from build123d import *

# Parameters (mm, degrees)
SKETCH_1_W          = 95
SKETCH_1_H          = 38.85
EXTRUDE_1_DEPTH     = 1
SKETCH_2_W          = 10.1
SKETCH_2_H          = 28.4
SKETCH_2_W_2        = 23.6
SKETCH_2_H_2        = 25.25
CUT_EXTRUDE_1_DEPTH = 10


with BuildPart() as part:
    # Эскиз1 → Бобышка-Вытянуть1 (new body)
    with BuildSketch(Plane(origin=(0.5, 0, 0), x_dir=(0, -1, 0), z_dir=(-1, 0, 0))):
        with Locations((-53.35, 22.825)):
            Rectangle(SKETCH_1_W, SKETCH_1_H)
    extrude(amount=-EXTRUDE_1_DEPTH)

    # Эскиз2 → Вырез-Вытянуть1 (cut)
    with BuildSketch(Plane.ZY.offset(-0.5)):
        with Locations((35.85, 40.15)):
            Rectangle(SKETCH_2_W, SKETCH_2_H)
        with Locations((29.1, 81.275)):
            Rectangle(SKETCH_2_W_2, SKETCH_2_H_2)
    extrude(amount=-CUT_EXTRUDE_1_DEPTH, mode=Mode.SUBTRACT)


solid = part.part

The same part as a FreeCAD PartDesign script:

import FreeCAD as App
import Part
import Sketcher
Q = App.Units.Quantity


def add_polygon(sketch, points):
    """Adds a closed chain of lines whose ends are joined by coincident constraints."""
    first, n = sketch.GeometryCount, len(points)
    for a, b in zip(points, points[1:] + points[:1]):
        sketch.addGeometry(Part.LineSegment(App.Vector(*a, 0), App.Vector(*b, 0)), False)
    for i in range(n):
        sketch.addConstraint(Sketcher.Constraint("Coincident", first + i, 2, first + (i + 1) % n, 1))

doc = App.newDocument("Part")
params = doc.addObject("Spreadsheet::Sheet", "Params")
for row, (alias, value) in enumerate([
    ("sketch1_width", "95 mm"),
    ("sketch1_height", "38.85 mm"),
    ("pad1_length", "1 mm"),
    ("sketch2_width", "28.4 mm"),
    ("sketch2_height", "10.1 mm"),
    ("sketch2_height2", "23.6 mm"),
    ("sketch2_width2", "25.25 mm"),
    ("pocket1_length", "10 mm"),
], start=1):
    params.set(f"A{row}", alias)
    params.set(f"B{row}", "=" + value)
    params.setAlias(f"B{row}", alias)

body = doc.addObject("PartDesign::Body", "Body")

# Sketch on YZ plane
sketch1 = body.newObject("Sketcher::SketchObject", "Sketch")
sketch1.AttachmentSupport = (doc.getObject("YZ_Plane"), [""])
sketch1.MapMode = "FlatFace"
sketch1.AttachmentOffset = App.Placement(App.Vector(0, 0, 0.5), App.Rotation())
add_polygon(sketch1, [(101, 42), (101, 3), (6, 3), (6, 42)])  # lines 0-3
sketch1.addConstraint([
    Sketcher.Constraint("Vertical", 0),
    Sketcher.Constraint("Horizontal", 1),
    Sketcher.Constraint("Vertical", 2),
    Sketcher.Constraint("Horizontal", 3),
    Sketcher.Constraint("DistanceX", 1, 2, 1, 1, Q("95 mm")),
    Sketcher.Constraint("DistanceY", 0, 2, 0, 1, Q("38.85 mm")),
    Sketcher.Constraint("DistanceY", -1, 1, 0, 2, Q("3.4 mm")),
    Sketcher.Constraint("DistanceX", -1, 1, 0, 2, Q("100.85 mm")),
])
sketch1.setExpression("Constraints[8]", "Params.sketch1_width")
sketch1.setExpression("Constraints[9]", "Params.sketch1_height")
pad1 = body.newObject("PartDesign::Pad", "Pad")
pad1.Profile = sketch1
pad1.setExpression("Length", "Params.pad1_length")

# Sketch on YZ plane
sketch2 = body.newObject("Sketcher::SketchObject", "Sketch001")
sketch2.AttachmentSupport = (doc.getObject("YZ_Plane"), [""])
sketch2.MapMode = "FlatFace"
sketch2.AttachmentOffset = App.Placement(App.Vector(0, 0, 0.5), App.Rotation())
add_polygon(sketch2, [(54, 31), (26, 31), (26, 41), (54, 41)])  # lines 0-3
add_polygon(sketch2, [(94, 17), (69, 17), (69, 41), (94, 41)])  # lines 4-7
sketch2.addConstraint([
    Sketcher.Constraint("Horizontal", 0),
    Sketcher.Constraint("Vertical", 1),
    Sketcher.Constraint("Horizontal", 2),
    Sketcher.Constraint("Vertical", 3),
    Sketcher.Constraint("Horizontal", 4),
    Sketcher.Constraint("Vertical", 5),
    Sketcher.Constraint("Horizontal", 6),
    Sketcher.Constraint("Vertical", 7),
    Sketcher.Constraint("Horizontal", 2, 2, 5, 2),
    Sketcher.Constraint("DistanceX", 0, 2, 0, 1, Q("28.4 mm")),
    Sketcher.Constraint("DistanceY", 1, 1, 1, 2, Q("10.1 mm")),
    Sketcher.Constraint("DistanceY", 5, 1, 5, 2, Q("23.6 mm")),
    Sketcher.Constraint("DistanceX", 4, 2, 4, 1, Q("25.25 mm")),
    Sketcher.Constraint("DistanceY", -1, 1, 0, 2, Q("30.8 mm")),
    Sketcher.Constraint("DistanceX", -1, 1, 6, 2, Q("93.9 mm")),
    Sketcher.Constraint("DistanceX", 3, 2, 4, 2, Q("14.3 mm")),
])
sketch2.setExpression("Constraints[17]", "Params.sketch2_width")
sketch2.setExpression("Constraints[18]", "Params.sketch2_height")
sketch2.setExpression("Constraints[19]", "Params.sketch2_height2")
sketch2.setExpression("Constraints[20]", "Params.sketch2_width2")
pocket1 = body.newObject("PartDesign::Pocket", "Pocket")
pocket1.Profile = sketch2
pocket1.setExpression("Length", "Params.pocket1_length")
pocket1.Reversed = True

doc.recompute()
